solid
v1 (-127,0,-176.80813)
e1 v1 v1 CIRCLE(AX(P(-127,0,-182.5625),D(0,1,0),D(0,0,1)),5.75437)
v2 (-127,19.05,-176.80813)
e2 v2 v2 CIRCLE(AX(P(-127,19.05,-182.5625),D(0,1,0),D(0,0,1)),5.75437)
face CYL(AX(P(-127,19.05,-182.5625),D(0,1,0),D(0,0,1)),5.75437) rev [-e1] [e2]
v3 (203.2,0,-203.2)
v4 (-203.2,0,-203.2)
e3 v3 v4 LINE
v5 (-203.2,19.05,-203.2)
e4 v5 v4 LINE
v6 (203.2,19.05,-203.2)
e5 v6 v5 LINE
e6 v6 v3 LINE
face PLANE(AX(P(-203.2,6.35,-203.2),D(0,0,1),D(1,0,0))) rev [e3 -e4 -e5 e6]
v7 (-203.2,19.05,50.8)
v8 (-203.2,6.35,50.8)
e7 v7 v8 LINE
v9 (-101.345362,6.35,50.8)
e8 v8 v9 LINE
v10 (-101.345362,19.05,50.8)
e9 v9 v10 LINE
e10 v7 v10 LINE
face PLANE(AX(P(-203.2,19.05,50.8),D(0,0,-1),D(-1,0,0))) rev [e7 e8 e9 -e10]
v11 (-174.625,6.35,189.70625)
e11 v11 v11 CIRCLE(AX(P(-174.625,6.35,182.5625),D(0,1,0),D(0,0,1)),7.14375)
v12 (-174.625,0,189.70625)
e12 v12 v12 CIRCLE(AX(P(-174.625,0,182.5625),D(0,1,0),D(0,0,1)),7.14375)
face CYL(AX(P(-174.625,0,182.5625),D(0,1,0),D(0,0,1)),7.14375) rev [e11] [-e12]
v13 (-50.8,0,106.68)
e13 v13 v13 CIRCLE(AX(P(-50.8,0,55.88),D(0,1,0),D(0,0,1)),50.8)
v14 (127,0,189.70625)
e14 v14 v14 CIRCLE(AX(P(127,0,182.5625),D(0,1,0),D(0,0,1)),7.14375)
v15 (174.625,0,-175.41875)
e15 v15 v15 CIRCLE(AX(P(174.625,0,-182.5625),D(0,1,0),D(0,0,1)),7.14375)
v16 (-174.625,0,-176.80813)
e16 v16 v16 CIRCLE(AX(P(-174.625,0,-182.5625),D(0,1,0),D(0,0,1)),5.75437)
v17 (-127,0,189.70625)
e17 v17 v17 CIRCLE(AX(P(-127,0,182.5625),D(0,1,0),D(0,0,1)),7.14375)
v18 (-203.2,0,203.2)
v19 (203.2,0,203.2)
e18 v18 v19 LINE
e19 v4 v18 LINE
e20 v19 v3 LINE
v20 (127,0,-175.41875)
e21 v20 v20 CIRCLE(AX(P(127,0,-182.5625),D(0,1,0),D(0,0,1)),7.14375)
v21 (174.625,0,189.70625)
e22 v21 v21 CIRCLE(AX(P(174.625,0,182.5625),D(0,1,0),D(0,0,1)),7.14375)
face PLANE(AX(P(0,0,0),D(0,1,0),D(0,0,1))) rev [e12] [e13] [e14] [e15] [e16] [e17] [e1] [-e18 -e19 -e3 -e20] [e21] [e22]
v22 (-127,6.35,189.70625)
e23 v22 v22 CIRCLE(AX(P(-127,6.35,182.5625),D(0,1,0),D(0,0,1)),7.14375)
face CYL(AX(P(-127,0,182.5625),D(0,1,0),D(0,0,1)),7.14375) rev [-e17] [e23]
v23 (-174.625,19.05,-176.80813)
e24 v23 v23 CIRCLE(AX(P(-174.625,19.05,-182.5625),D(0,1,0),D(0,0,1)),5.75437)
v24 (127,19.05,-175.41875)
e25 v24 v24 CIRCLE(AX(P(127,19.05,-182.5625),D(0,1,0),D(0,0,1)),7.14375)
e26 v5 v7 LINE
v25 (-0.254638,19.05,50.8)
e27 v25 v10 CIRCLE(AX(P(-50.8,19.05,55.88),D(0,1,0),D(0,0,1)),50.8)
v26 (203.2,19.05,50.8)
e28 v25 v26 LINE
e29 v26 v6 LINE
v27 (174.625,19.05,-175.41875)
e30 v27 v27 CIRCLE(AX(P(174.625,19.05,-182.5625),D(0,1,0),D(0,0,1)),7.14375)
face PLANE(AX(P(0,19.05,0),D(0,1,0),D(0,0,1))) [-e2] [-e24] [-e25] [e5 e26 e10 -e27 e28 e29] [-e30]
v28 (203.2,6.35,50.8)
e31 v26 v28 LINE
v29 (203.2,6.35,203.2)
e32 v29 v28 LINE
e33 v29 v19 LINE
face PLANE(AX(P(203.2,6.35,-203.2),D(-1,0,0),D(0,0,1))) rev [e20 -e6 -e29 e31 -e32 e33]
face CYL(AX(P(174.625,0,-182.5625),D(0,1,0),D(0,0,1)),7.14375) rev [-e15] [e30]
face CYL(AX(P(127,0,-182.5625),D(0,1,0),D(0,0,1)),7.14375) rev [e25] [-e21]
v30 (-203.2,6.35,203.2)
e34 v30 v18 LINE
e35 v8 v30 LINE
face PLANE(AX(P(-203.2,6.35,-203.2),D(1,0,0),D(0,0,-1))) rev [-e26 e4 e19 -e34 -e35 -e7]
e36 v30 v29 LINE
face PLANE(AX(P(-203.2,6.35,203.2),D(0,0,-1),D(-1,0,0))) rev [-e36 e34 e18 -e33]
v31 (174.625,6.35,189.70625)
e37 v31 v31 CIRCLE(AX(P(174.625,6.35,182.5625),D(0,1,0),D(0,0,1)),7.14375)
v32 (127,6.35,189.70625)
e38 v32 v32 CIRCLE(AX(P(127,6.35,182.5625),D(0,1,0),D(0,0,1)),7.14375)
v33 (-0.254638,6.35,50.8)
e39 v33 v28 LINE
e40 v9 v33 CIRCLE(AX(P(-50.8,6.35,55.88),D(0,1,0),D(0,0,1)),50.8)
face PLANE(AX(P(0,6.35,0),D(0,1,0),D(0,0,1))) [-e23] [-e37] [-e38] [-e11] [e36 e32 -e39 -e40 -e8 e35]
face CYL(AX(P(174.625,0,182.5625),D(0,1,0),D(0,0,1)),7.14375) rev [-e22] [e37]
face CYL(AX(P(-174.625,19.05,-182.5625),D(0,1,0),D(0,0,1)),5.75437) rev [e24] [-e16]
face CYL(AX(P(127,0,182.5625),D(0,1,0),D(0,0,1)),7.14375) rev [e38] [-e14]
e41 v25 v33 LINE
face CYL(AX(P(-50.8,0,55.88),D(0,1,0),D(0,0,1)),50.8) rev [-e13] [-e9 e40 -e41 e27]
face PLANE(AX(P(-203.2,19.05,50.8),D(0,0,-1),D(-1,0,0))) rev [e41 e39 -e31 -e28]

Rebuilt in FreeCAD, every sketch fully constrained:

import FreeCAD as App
import Part
import Sketcher
from FreeCAD import Vector
Q = App.Units.Quantity


def add_polygon(sketch, points):
    """Adds a closed chain of lines whose ends are joined by coincident constraints."""
    first, n = sketch.GeometryCount, len(points)
    for a, b in zip(points, points[1:] + points[:1]):
        sketch.addGeometry(Part.LineSegment(App.Vector(*a, 0), App.Vector(*b, 0)), False)
    for i in range(n):
        sketch.addConstraint(Sketcher.Constraint("Coincident", first + i, 2, first + (i + 1) % n, 1))

doc = App.newDocument("Part")
params = doc.addObject("Spreadsheet::Sheet", "Params")
for row, (alias, value) in enumerate([
    ("sketch1_width", "16 in"),
    ("pad1_length", "0.25 in"),
    ("sketch2_diameter", "4 in"),
    ("pocket1_length", "0.25 in"),
    ("sketch3_width", "16 in"),
    ("sketch3_height", "10 in"),
    ("pad2_length", "0.5 in"),
    ("sketch4_diameter", "4 in"),
    ("sketch5_diameter", "0.5625 in"),
    ("hole_diameter", "0.4531 in"),
    ("sketch7_diameter", "0.5625 in"),
], start=1):
    params.set(f"A{row}", alias)
    params.set(f"B{row}", "=" + value)
    params.setAlias(f"B{row}", alias)

body = doc.addObject("PartDesign::Body", "Body")

sketch1 = body.newObject("Sketcher::SketchObject", "Sketch")
sketch1.AttachmentSupport = (doc.getObject("XZ_Plane"), [""])
sketch1.MapMode = "FlatFace"
add_polygon(sketch1, [(-203.2, -203.2), (-203.2, 203.2), (203.2, 203.2), (203.2, -203.2)])
sketch1.addConstraint(Sketcher.Constraint("Vertical", 0))
sketch1.addConstraint(Sketcher.Constraint("Horizontal", 1))
sketch1.addConstraint(Sketcher.Constraint("Vertical", 2))
sketch1.addConstraint(Sketcher.Constraint("Horizontal", 3))
sketch1.addConstraint(Sketcher.Constraint("Symmetric", 0, 2, 2, 2, -1, 1))
sketch1.addConstraint(Sketcher.Constraint("Equal", 3, 0))
sketch1.addConstraint(Sketcher.Constraint("DistanceX", 1, 1, 1, 2, Q("16 in")))
sketch1.setExpression("Constraints[10]", "Params.sketch1_width")
pad1 = body.newObject("PartDesign::Pad", "Pad")
pad1.Profile = sketch1
pad1.setExpression("Length", "Params.pad1_length")
pad1.Reversed = True

sketch2 = body.newObject("Sketcher::SketchObject", "Sketch001")
sketch2.AttachmentSupport = (doc.getObject("XZ_Plane"), [""])
sketch2.MapMode = "FlatFace"
sketch2.AttachmentOffset = App.Placement(Vector(0, 0, -0.25 * 25.4), App.Rotation())
sketch2.addGeometry(Part.Circle(Vector(-50.8, 55.88, 0), Vector(0, 0, 1), 50.8), False)
sketch2.addConstraint(Sketcher.Constraint("Diameter", 0, Q("4 in")))
sketch2.addConstraint(Sketcher.Constraint("DistanceX", 0, 3, -1, 1, Q("2 in")))
sketch2.addConstraint(Sketcher.Constraint("DistanceY", -1, 1, 0, 3, Q("2.2 in")))
sketch2.setExpression("Constraints[0]", "Params.sketch2_diameter")
pocket1 = body.newObject("PartDesign::Pocket", "Pocket")
pocket1.Profile = sketch2
pocket1.setExpression("Length", "Params.pocket1_length")
pocket1.Reversed = True

sketch3 = body.newObject("Sketcher::SketchObject", "Sketch002")
sketch3.AttachmentSupport = (doc.getObject("XZ_Plane"), [""])
sketch3.MapMode = "FlatFace"
sketch3.AttachmentOffset = App.Placement(Vector(0, 0, -0.25 * 25.4), App.Rotation())
add_polygon(sketch3, [(-203.2, -203.2), (-203.2, 50.8), (203.2, 50.8), (203.2, -203.2)])
sketch3.addConstraint(Sketcher.Constraint("Vertical", 0))
sketch3.addConstraint(Sketcher.Constraint("Horizontal", 1))
sketch3.addConstraint(Sketcher.Constraint("Vertical", 2))
sketch3.addConstraint(Sketcher.Constraint("Horizontal", 3))
sketch3.addConstraint(Sketcher.Constraint("DistanceX", 1, 1, 1, 2, Q("16 in")))
sketch3.addConstraint(Sketcher.Constraint("DistanceY", 0, 1, 0, 2, Q("10 in")))
sketch3.addConstraint(Sketcher.Constraint("DistanceX", 0, 2, -1, 1, Q("8 in")))
sketch3.addConstraint(Sketcher.Constraint("DistanceY", -1, 1, 0, 2, Q("2 in")))
sketch3.setExpression("Constraints[8]", "Params.sketch3_width")
sketch3.setExpression("Constraints[9]", "Params.sketch3_height")
pad2 = body.newObject("PartDesign::Pad", "Pad001")
pad2.Profile = sketch3
pad2.setExpression("Length", "Params.pad2_length")
pad2.Reversed = True

sketch4 = body.newObject("Sketcher::SketchObject", "Sketch003")
sketch4.AttachmentSupport = (doc.getObject("XZ_Plane"), [""])
sketch4.MapMode = "FlatFace"
sketch4.addGeometry(Part.Circle(Vector(-50.8, 55.88, 0), Vector(0, 0, 1), 50.8), False)
sketch4.addConstraint(Sketcher.Constraint("Diameter", 0, Q("4 in")))
sketch4.addConstraint(Sketcher.Constraint("DistanceX", 0, 3, -1, 1, Q("2 in")))
sketch4.addConstraint(Sketcher.Constraint("DistanceY", -1, 1, 0, 3, Q("2.2 in")))
sketch4.setExpression("Constraints[0]", "Params.sketch4_diameter")
pocket2 = body.newObject("PartDesign::Pocket", "Pocket001")
pocket2.Profile = sketch4
pocket2.Type = "ThroughAll"

sketch5 = body.newObject("Sketcher::SketchObject", "Sketch004")
sketch5.AttachmentSupport = (doc.getObject("XZ_Plane"), [""])
sketch5.MapMode = "FlatFace"
sketch5.AttachmentOffset = App.Placement(Vector(0, 0, -0.25 * 25.4), App.Rotation())
sketch5.addGeometry(Part.Circle(Vector(174.625, 182.5625, 0), Vector(0, 0, 1), 7.14375), False)
sketch5.addGeometry(Part.Circle(Vector(127, 182.5625, 0), Vector(0, 0, 1), 7.14375), False)
sketch5.addGeometry(Part.Circle(Vector(-174.625, 182.5625, 0), Vector(0, 0, 1), 7.14375), False)
sketch5.addGeometry(Part.Circle(Vector(-127, 182.5625, 0), Vector(0, 0, 1), 7.14375), False)
sketch5.addConstraint(Sketcher.Constraint("Equal", 0, 1))
sketch5.addConstraint(Sketcher.Constraint("Equal", 1, 2))
sketch5.addConstraint(Sketcher.Constraint("Equal", 2, 3))
sketch5.addConstraint(Sketcher.Constraint("Symmetric", 0, 3, 2, 3, -2))
sketch5.addConstraint(Sketcher.Constraint("Symmetric", 1, 3, 3, 3, -2))
sketch5.addConstraint(Sketcher.Constraint("Horizontal", 0, 3, 1, 3))
sketch5.addConstraint(Sketcher.Constraint("Diameter", 0, Q("0.5625 in")))
sketch5.addConstraint(Sketcher.Constraint("DistanceX", -1, 1, 1, 3, Q("5 in")))
sketch5.addConstraint(Sketcher.Constraint("DistanceX", 2, 3, 0, 3, Q("13.75 in")))
sketch5.addConstraint(Sketcher.Constraint("DistanceY", -1, 1, 0, 3, Q("7.1875 in")))
sketch5.setExpression("Constraints[6]", "Params.sketch5_diameter")
pocket3 = body.newObject("PartDesign::Pocket", "Pocket002")
pocket3.Profile = sketch5
pocket3.Type = "ThroughAll"
pocket3.Reversed = True

sketch6 = body.newObject("Sketcher::SketchObject", "Sketch005")
sketch6.AttachmentSupport = (doc.getObject("XZ_Plane"), [""])
sketch6.MapMode = "FlatFace"
sketch6.AttachmentOffset = App.Placement(Vector(0, 0, -0.75 * 25.4), App.Rotation())
sketch6.addGeometry(Part.Circle(Vector(-174.625, -182.5625, 0), Vector(0, 0, 1), 5.75437), False)
sketch6.addGeometry(Part.Circle(Vector(-127, -182.5625, 0), Vector(0, 0, 1), 5.75437), False)
sketch6.addConstraint(Sketcher.Constraint("Equal", 0, 1))
sketch6.addConstraint(Sketcher.Constraint("Horizontal", 0, 3, 1, 3))
sketch6.addConstraint(Sketcher.Constraint("DistanceX", 1, 3, -1, 1, Q("5 in")))
sketch6.addConstraint(Sketcher.Constraint("Diameter", 0, Q("0.4531 in")))
sketch6.addConstraint(Sketcher.Constraint("DistanceX", 0, 3, -1, 1, Q("6.875 in")))
sketch6.addConstraint(Sketcher.Constraint("DistanceY", 0, 3, -1, 1, Q("7.1875 in")))
doc.recompute()
hole = body.newObject("PartDesign::Hole", "Hole")
hole.Profile = sketch6
hole.ThreadType = "None"
hole.setExpression("Diameter", "Params.hole_diameter")
hole.DepthType = "ThroughAll"
hole.Reversed = True

sketch7 = body.newObject("Sketcher::SketchObject", "Sketch006")
sketch7.AttachmentSupport = (doc.getObject("XZ_Plane"), [""])
sketch7.MapMode = "FlatFace"
sketch7.AttachmentOffset = App.Placement(Vector(0, 0, -0.75 * 25.4), App.Rotation())
sketch7.addGeometry(Part.Circle(Vector(174.625, -182.5625, 0), Vector(0, 0, 1), 7.14375), False)
sketch7.addGeometry(Part.Circle(Vector(127, -182.5625, 0), Vector(0, 0, 1), 7.14375), False)
sketch7.addConstraint(Sketcher.Constraint("Equal", 0, 1))
sketch7.addConstraint(Sketcher.Constraint("Horizontal", 0, 3, 1, 3))
sketch7.addConstraint(Sketcher.Constraint("Diameter", 0, Q("0.5625 in")))
sketch7.addConstraint(Sketcher.Constraint("DistanceX", -1, 1, 1, 3, Q("5 in")))
sketch7.addConstraint(Sketcher.Constraint("DistanceX", -1, 1, 0, 3, Q("6.875 in")))
sketch7.addConstraint(Sketcher.Constraint("DistanceY", 0, 3, -1, 1, Q("7.1875 in")))
sketch7.setExpression("Constraints[2]", "Params.sketch7_diameter")
pocket4 = body.newObject("PartDesign::Pocket", "Pocket003")
pocket4.Profile = sketch7
pocket4.Type = "ThroughAll"
pocket4.Reversed = True

doc.recompute()
